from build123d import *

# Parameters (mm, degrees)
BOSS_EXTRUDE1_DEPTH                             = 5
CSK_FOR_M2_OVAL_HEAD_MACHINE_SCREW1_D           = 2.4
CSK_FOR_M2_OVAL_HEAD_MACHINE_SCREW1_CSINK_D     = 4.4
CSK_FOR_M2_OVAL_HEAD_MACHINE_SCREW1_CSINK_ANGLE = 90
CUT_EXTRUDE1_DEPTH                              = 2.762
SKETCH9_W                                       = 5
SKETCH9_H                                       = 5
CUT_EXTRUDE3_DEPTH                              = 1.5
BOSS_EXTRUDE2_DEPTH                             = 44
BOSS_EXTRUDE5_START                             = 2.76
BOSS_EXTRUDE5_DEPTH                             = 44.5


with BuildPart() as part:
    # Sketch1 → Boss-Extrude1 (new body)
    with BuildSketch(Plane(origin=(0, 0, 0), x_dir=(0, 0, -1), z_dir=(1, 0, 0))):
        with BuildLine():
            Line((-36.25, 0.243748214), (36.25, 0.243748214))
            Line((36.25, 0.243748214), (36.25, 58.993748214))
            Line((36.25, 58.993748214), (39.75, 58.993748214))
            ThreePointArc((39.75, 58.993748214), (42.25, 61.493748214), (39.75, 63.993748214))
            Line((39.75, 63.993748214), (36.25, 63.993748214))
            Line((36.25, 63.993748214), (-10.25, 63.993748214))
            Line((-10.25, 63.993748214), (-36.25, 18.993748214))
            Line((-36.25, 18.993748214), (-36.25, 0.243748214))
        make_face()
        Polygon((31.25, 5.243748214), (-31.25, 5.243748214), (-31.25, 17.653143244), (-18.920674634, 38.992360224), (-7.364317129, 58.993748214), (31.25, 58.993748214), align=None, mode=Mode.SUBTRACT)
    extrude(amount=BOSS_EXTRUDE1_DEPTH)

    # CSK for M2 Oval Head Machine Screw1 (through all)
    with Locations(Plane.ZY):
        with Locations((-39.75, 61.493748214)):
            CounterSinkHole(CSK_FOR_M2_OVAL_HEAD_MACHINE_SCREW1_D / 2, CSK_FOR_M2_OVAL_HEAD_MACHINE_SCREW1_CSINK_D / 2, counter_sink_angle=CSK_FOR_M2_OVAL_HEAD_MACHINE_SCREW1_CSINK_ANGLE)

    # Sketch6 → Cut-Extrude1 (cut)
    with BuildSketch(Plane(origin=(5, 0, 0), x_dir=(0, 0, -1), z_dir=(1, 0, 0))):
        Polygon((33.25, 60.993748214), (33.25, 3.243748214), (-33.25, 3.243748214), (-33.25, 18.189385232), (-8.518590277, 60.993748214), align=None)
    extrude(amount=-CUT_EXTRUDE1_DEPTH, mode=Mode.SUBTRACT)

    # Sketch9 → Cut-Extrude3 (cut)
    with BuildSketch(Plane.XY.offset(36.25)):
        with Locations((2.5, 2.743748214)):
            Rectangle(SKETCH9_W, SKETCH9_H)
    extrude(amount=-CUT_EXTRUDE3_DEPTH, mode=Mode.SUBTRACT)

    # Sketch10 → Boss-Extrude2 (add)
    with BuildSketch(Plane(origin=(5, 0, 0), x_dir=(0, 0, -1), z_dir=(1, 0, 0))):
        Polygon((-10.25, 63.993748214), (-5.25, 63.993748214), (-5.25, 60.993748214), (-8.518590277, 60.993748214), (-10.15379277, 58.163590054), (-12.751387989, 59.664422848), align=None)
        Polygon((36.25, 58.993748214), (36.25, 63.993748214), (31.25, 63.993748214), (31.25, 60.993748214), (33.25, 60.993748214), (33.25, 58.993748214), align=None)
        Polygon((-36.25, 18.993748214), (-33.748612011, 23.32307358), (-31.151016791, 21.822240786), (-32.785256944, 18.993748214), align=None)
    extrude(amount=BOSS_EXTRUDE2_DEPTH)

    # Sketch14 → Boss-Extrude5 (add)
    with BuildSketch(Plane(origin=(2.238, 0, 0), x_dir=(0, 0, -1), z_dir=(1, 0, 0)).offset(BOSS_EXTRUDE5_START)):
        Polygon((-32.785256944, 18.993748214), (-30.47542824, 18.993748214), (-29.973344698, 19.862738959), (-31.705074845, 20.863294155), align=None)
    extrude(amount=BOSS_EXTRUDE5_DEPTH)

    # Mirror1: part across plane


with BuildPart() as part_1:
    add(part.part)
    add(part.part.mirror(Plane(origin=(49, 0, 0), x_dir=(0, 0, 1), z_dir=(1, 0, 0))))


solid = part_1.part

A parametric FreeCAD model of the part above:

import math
import FreeCAD as App
import Part
import Sketcher

V = App.Vector
Q = App.Units.Quantity

doc = App.newDocument("Part")
params = doc.addObject("Spreadsheet::Sheet", "Params")
for row, (alias, value) in enumerate([
    ("sketch1_radius", "2.5 mm"),
    ("sketch1_height", "50 mm"),
    ("sketch1_height2", "72.5 mm"),
    ("sketch1_height3", "3.5 mm"),
    ("sketch1_height4", "62.5 mm"),
    ("pad1_length", "5 mm"),
    ("sketch2_diameter", "2.4 mm"),
    ("hole_diameter", "2.4 mm"),
    ("hole_csink_diameter", "4.4 mm"),
    ("sketch3_height", "66.5 mm"),
    ("sketch3_width", "57.75 mm"),
    ("pocket1_length", "2.762 mm"),
    ("sketch4_width", "5 mm"),
    ("pocket2_length", "1.5 mm"),
    ("sketch5_width", "3 mm"),
    ("sketch5_width2", "5 mm"),
    ("sketch5_length", "5 mm"),
    ("sketch5_length2", "3 mm"),
    ("pad2_length", "44 mm"),
    ("sketch6_length", "2 mm"),
    ("pad3_length", "44.5 mm"),
], start=1):
    params.set(f"A{row}", alias)
    params.set(f"B{row}", "=" + value)
    params.setAlias(f"B{row}", alias)

body = doc.addObject("PartDesign::Body", "Body")

sketch1 = body.newObject("Sketcher::SketchObject", "Sketch")
sketch1.AttachmentSupport = (doc.getObject("YZ_Plane"), [""])
sketch1.MapMode = "FlatFace"
sketch1.addGeometry(Part.LineSegment(V(0.2, 36.2, 0), V(0.2, -36.2, 0)), False)
sketch1.addGeometry(Part.LineSegment(V(0.2, -36.2, 0), V(59, -36.2, 0)), False)
sketch1.addGeometry(Part.LineSegment(V(59, -36.2, 0), V(59, -39.8, 0)), False)
sketch1.addGeometry(Part.ArcOfCircle(Part.Circle(V(61.5, -39.8, 0), V(0, 0, 1), 2.5), math.radians(180), math.radians(360)), False)
sketch1.addGeometry(Part.LineSegment(V(64, -39.8, 0), V(64, 10.2, 0)), False)
sketch1.addGeometry(Part.LineSegment(V(64, 10.2, 0), V(19, 36.2, 0)), False)
sketch1.addGeometry(Part.LineSegment(V(19, 36.2, 0), V(0.2, 36.2, 0)), False)
sketch1.addGeometry(Part.LineSegment(V(59, -31.2, 0), V(5.2, -31.2, 0)), False)
sketch1.addGeometry(Part.LineSegment(V(5.2, -31.2, 0), V(5.2, 31.2, 0)), False)
sketch1.addGeometry(Part.LineSegment(V(5.2, 31.2, 0), V(17.7, 31.2, 0)), False)
sketch1.addGeometry(Part.LineSegment(V(17.7, 31.2, 0), V(39, 18.9, 0)), False)
sketch1.addGeometry(Part.LineSegment(V(39, 18.9, 0), V(59, 7.4, 0)), False)
sketch1.addGeometry(Part.LineSegment(V(59, 7.4, 0), V(59, -31.2, 0)), False)
sketch1.addConstraint(Sketcher.Constraint("Coincident", 0, 2, 1, 1))
sketch1.addConstraint(Sketcher.Constraint("Coincident", 1, 2, 2, 1))
sketch1.addConstraint(Sketcher.Constraint("Tangent", 2, 2, 3, 1))
sketch1.addConstraint(Sketcher.Constraint("Tangent", 3, 2, 4, 1))
sketch1.addConstraint(Sketcher.Constraint("Coincident", 4, 2, 5, 1))
sketch1.addConstraint(Sketcher.Constraint("Coincident", 5, 2, 6, 1))
sketch1.addConstraint(Sketcher.Constraint("Coincident", 6, 2, 0, 1))
sketch1.addConstraint(Sketcher.Constraint("Coincident", 7, 2, 8, 1))
sketch1.addConstraint(Sketcher.Constraint("Coincident", 8, 2, 9, 1))
sketch1.addConstraint(Sketcher.Constraint("Coincident", 9, 2, 10, 1))
sketch1.addConstraint(Sketcher.Constraint("Coincident", 10, 2, 11, 1))
sketch1.addConstraint(Sketcher.Constraint("Coincident", 11, 2, 12, 1))
sketch1.addConstraint(Sketcher.Constraint("Coincident", 12, 2, 7, 1))
sketch1.addConstraint(Sketcher.Constraint("Vertical", 0))
sketch1.addConstraint(Sketcher.Constraint("Horizontal", 1))
sketch1.addConstraint(Sketcher.Constraint("Vertical", 2))
sketch1.addConstraint(Sketcher.Constraint("Vertical", 4))
sketch1.addConstraint(Sketcher.Constraint("Horizontal", 6))
sketch1.addConstraint(Sketcher.Constraint("Horizontal", 7))
sketch1.addConstraint(Sketcher.Constraint("Vertical", 8))
sketch1.addConstraint(Sketcher.Constraint("Horizontal", 9))
sketch1.addConstraint(Sketcher.Constraint("Vertical", 12))
sketch1.addConstraint(Sketcher.Constraint("Parallel", 5, 10))
sketch1.addConstraint(Sketcher.Constraint("Parallel", 10, 11))
sketch1.addConstraint(Sketcher.Constraint("Vertical", 2, 2, 11, 2))
sketch1.addConstraint(Sketcher.Constraint("Radius", 3, Q("2.5 mm")))
sketch1.addConstraint(Sketcher.Constraint("DistanceY", 4, 1, 4, 2, Q("50 mm")))
sketch1.addConstraint(Sketcher.Constraint("DistanceY", 0, 2, 0, 1, Q("72.5 mm")))
sketch1.addConstraint(Sketcher.Constraint("DistanceY", 2, 2, 2, 1, Q("3.5 mm")))
sketch1.addConstraint(Sketcher.Constraint("DistanceY", 8, 1, 8, 2, Q("62.5 mm")))
sketch1.addConstraint(Sketcher.Constraint("DistanceX", 5, 2, 4, 2, Q("45 mm")))
sketch1.addConstraint(Sketcher.Constraint("DistanceX", 0, 2, 7, 2, Q("5 mm")))
sketch1.addConstraint(Sketcher.Constraint("DistanceY", 0, 2, 7, 2, Q("5 mm")))
sketch1.addConstraint(Sketcher.Constraint("DistanceX", 1, 1, 1, 2, Q("58.75 mm")))
sketch1.addConstraint(Sketcher.Constraint("DistanceY", 3, 3, -1, 1, Q("39.75 mm")))
sketch1.addConstraint(Sketcher.Constraint("Distance", 11, Q("23.09989 mm")))
sketch1.addConstraint(Sketcher.Constraint("DistanceX", 9, 1, 9, 2, Q("12.409395 mm")))
sketch1.addConstraint(Sketcher.Constraint("DistanceX", -1, 1, 3, 3, Q("61.493748 mm")))
sketch1.setExpression("Constraints[25]", "Params.sketch1_radius")
sketch1.setExpression("Constraints[26]", "Params.sketch1_height")
sketch1.setExpression("Constraints[27]", "Params.sketch1_height2")
sketch1.setExpression("Constraints[28]", "Params.sketch1_height3")
sketch1.setExpression("Constraints[29]", "Params.sketch1_height4")
pad1 = body.newObject("PartDesign::Pad", "Pad")
pad1.Profile = sketch1
pad1.setExpression("Length", "Params.pad1_length")

sketch2 = body.newObject("Sketcher::SketchObject", "Sketch001")
sketch2.AttachmentSupport = (doc.getObject("YZ_Plane"), [""])
sketch2.MapMode = "FlatFace"
sketch2.addGeometry(Part.Circle(V(61.5, -39.8, 0), V(0, 0, 1), 1.2), False)
sketch2.addConstraint(Sketcher.Constraint("Diameter", 0, Q("2.4 mm")))
sketch2.addConstraint(Sketcher.Constraint("DistanceY", 0, 3, -1, 1, Q("39.75 mm")))
sketch2.addConstraint(Sketcher.Constraint("DistanceX", -1, 1, 0, 3, Q("61.493748 mm")))
sketch2.setExpression("Constraints[0]", "Params.sketch2_diameter")
doc.recompute()
hole = body.newObject("PartDesign::Hole", "Hole")
hole.Profile = sketch2
hole.ThreadType = "None"
hole.setExpression("Diameter", "Params.hole_diameter")
hole.DepthType = "ThroughAll"
hole.HoleCutType = "Countersink"
hole.setExpression("HoleCutDiameter", "Params.hole_csink_diameter")
hole.HoleCutCountersinkAngle = 90
hole.Reversed = True

sketch3 = body.newObject("Sketcher::SketchObject", "Sketch002")
sketch3.AttachmentSupport = (doc.getObject("YZ_Plane"), [""])
sketch3.MapMode = "FlatFace"
sketch3.AttachmentOffset = App.Placement(V(0, 0, 5), App.Rotation())
sketch3.addGeometry(Part.LineSegment(V(3, -33, 0), V(61, -33, 0)), False)
sketch3.addGeometry(Part.LineSegment(V(61, -33, 0), V(61, 9, 0)), False)
sketch3.addGeometry(Part.LineSegment(V(61, 9, 0), V(18, 33, 0)), False)
sketch3.addGeometry(Part.LineSegment(V(18, 33, 0), V(3, 33, 0)), False)
sketch3.addGeometry(Part.LineSegment(V(3, 33, 0), V(3, -33, 0)), False)
sketch3.addConstraint(Sketcher.Constraint("Coincident", 0, 2, 1, 1))
sketch3.addConstraint(Sketcher.Constraint("Coincident", 1, 2, 2, 1))
sketch3.addConstraint(Sketcher.Constraint("Coincident", 2, 2, 3, 1))
sketch3.addConstraint(Sketcher.Constraint("Coincident", 3, 2, 4, 1))
sketch3.addConstraint(Sketcher.Constraint("Coincident", 4, 2, 0, 1))
sketch3.addConstraint(Sketcher.Constraint("Horizontal", 0))
sketch3.addConstraint(Sketcher.Constraint("Vertical", 1))
sketch3.addConstraint(Sketcher.Constraint("Horizontal", 3))
sketch3.addConstraint(Sketcher.Constraint("Vertical", 4))
sketch3.addConstraint(Sketcher.Constraint("DistanceY", 4, 2, 4, 1, Q("66.5 mm")))
sketch3.addConstraint(Sketcher.Constraint("DistanceX", 0, 1, 0, 2, Q("57.75 mm")))
sketch3.addConstraint(Sketcher.Constraint("DistanceY", 0, 2, -1, 1, Q("33.25 mm")))
sketch3.addConstraint(Sketcher.Constraint("DistanceY", 1, 1, 1, 2, Q("41.76859 mm")))
sketch3.addConstraint(Sketcher.Constraint("DistanceX", 3, 2, 3, 1, Q("14.945637 mm")))
sketch3.addConstraint(Sketcher.Constraint("DistanceX", -1, 1, 0, 2, Q("60.993748 mm")))
sketch3.setExpression("Constraints[9]", "Params.sketch3_height")
sketch3.setExpression("Constraints[10]", "Params.sketch3_width")
pocket1 = body.newObject("PartDesign::Pocket", "Pocket")
pocket1.Profile = sketch3
pocket1.setExpression("Length", "Params.pocket1_length")

sketch4 = body.newObject("Sketcher::SketchObject", "Sketch003")
sketch4.AttachmentSupport = (doc.getObject("XY_Plane"), [""])
sketch4.MapMode = "FlatFace"
sketch4.AttachmentOffset = App.Placement(V(0, 0, 36.25), App.Rotation())
sketch4.addGeometry(Part.LineSegment(V(0, 5, 0), V(0, 0, 0)), False)
sketch4.addGeometry(Part.LineSegment(V(0, 0, 0), V(5, 0, 0)), False)
sketch4.addGeometry(Part.LineSegment(V(5, 0, 0), V(5, 5, 0)), False)
sketch4.addGeometry(Part.LineSegment(V(5, 5, 0), V(0, 5, 0)), False)
sketch4.addConstraint(Sketcher.Constraint("Coincident", 0, 2, 1, 1))
sketch4.addConstraint(Sketcher.Constraint("Coincident", 1, 2, 2, 1))
sketch4.addConstraint(Sketcher.Constraint("Coincident", 2, 2, 3, 1))
sketch4.addConstraint(Sketcher.Constraint("Coincident", 3, 2, 0, 1))
sketch4.addConstraint(Sketcher.Constraint("Vertical", 0))
sketch4.addConstraint(Sketcher.Constraint("Horizontal", 1))
sketch4.addConstraint(Sketcher.Constraint("Vertical", 2))
sketch4.addConstraint(Sketcher.Constraint("Horizontal", 3))
sketch4.addConstraint(Sketcher.Constraint("PointOnObject", 0, 2, -2))
sketch4.addConstraint(Sketcher.Constraint("Equal", 3, 0))
sketch4.addConstraint(Sketcher.Constraint("DistanceX", 1, 1, 1, 2, Q("5 mm")))
sketch4.addConstraint(Sketcher.Constraint("DistanceY", -1, 1, 0, 2, Q("0.243748 mm")))
sketch4.setExpression("Constraints[10]", "Params.sketch4_width")
pocket2 = body.newObject("PartDesign::Pocket", "Pocket001")
pocket2.Profile = sketch4
pocket2.setExpression("Length", "Params.pocket2_length")

sketch5 = body.newObject("Sketcher::SketchObject", "Sketch004")
sketch5.AttachmentSupport = (doc.getObject("YZ_Plane"), [""])
sketch5.MapMode = "FlatFace"
sketch5.AttachmentOffset = App.Placement(V(0, 0, 5), App.Rotation())
sketch5.addGeometry(Part.LineSegment(V(64, 5.2, 0), V(64, 10.2, 0)), False)
sketch5.addGeometry(Part.LineSegment(V(64, 10.2, 0), V(59.7, 12.8, 0)), False)
sketch5.addGeometry(Part.LineSegment(V(59.7, 12.8, 0), V(58.2, 10.2, 0)), False)
sketch5.addGeometry(Part.LineSegment(V(58.2, 10.2, 0), V(61, 8.5, 0)), False)
sketch5.addGeometry(Part.LineSegment(V(61, 8.5, 0), V(61, 5.2, 0)), False)
sketch5.addGeometry(Part.LineSegment(V(61, 5.2, 0), V(64, 5.2, 0)), False)
sketch5.addGeometry(Part.LineSegment(V(59, -36.2, 0), V(64, -36.2, 0)), False)
sketch5.addGeometry(Part.LineSegment(V(64, -36.2, 0), V(64, -31.2, 0)), False)
sketch5.addGeometry(Part.LineSegment(V(64, -31.2, 0), V(61, -31.2, 0)), False)
sketch5.addGeometry(Part.LineSegment(V(61, -31.2, 0), V(61, -33.2, 0)), False)
sketch5.addGeometry(Part.LineSegment(V(61, -33.2, 0), V(59, -33.2, 0)), False)
sketch5.addGeometry(Part.LineSegment(V(59, -33.2, 0), V(59, -36.2, 0)), False)
sketch5.addGeometry(Part.LineSegment(V(23.3, 33.7, 0), V(19, 36.2, 0)), False)
sketch5.addGeometry(Part.LineSegment(V(19, 36.2, 0), V(19, 32.8, 0)), False)
sketch5.addGeometry(Part.LineSegment(V(19, 32.8, 0), V(21.8, 31.2, 0)), False)
sketch5.addGeometry(Part.LineSegment(V(21.8, 31.2, 0), V(23.3, 33.7, 0)), False)
sketch5.addConstraint(Sketcher.Constraint("Coincident", 0, 2, 1, 1))
sketch5.addConstraint(Sketcher.Constraint("Coincident", 1, 2, 2, 1))
sketch5.addConstraint(Sketcher.Constraint("Coincident", 2, 2, 3, 1))
sketch5.addConstraint(Sketcher.Constraint("Coincident", 3, 2, 4, 1))
sketch5.addConstraint(Sketcher.Constraint("Coincident", 4, 2, 5, 1))
sketch5.addConstraint(Sketcher.Constraint("Coincident", 5, 2, 0, 1))
sketch5.addConstraint(Sketcher.Constraint("Coincident", 6, 2, 7, 1))
sketch5.addConstraint(Sketcher.Constraint("Coincident", 7, 2, 8, 1))
sketch5.addConstraint(Sketcher.Constraint("Coincident", 8, 2, 9, 1))
sketch5.addConstraint(Sketcher.Constraint("Coincident", 9, 2, 10, 1))
sketch5.addConstraint(Sketcher.Constraint("Coincident", 10, 2, 11, 1))
sketch5.addConstraint(Sketcher.Constraint("Coincident", 11, 2, 6, 1))
sketch5.addConstraint(Sketcher.Constraint("Coincident", 12, 2, 13, 1))
sketch5.addConstraint(Sketcher.Constraint("Coincident", 13, 2, 14, 1))
sketch5.addConstraint(Sketcher.Constraint("Coincident", 14, 2, 15, 1))
sketch5.addConstraint(Sketcher.Constraint("Coincident", 15, 2, 12, 1))
sketch5.addConstraint(Sketcher.Constraint("Vertical", 0))
sketch5.addConstraint(Sketcher.Constraint("Vertical", 4))
sketch5.addConstraint(Sketcher.Constraint("Horizontal", 5))
sketch5.addConstraint(Sketcher.Constraint("Horizontal", 6))
sketch5.addConstraint(Sketcher.Constraint("Vertical", 7))
sketch5.addConstraint(Sketcher.Constraint("Horizontal", 8))
sketch5.addConstraint(Sketcher.Constraint("Vertical", 9))
sketch5.addConstraint(Sketcher.Constraint("Horizontal", 10))
sketch5.addConstraint(Sketcher.Constraint("Vertical", 11))
sketch5.addConstraint(Sketcher.Constraint("Vertical", 13))
sketch5.addConstraint(Sketcher.Constraint("Perpendicular", 1, 2))
sketch5.addConstraint(Sketcher.Constraint("Perpendicular", 2, 3))
sketch5.addConstraint(Sketcher.Constraint("Parallel", 3, 12))
sketch5.addConstraint(Sketcher.Constraint("Parallel", 12, 14))
sketch5.addConstraint(Sketcher.Constraint("Perpendicular", 14, 15))
sketch5.addConstraint(Sketcher.Constraint("Vertical", 5, 2, 6, 2))
sketch5.addConstraint(Sketcher.Constraint("Vertical", 4, 2, 8, 2))
sketch5.addConstraint(Sketcher.Constraint("Equal", 6, 0))
sketch5.addConstraint(Sketcher.Constraint("Equal", 0, 7))
sketch5.addConstraint(Sketcher.Constraint("Equal", 10, 9))
sketch5.addConstraint(Sketcher.Constraint("Equal", 1, 12))
sketch5.addConstraint(Sketcher.Constraint("Equal", 2, 15))
sketch5.addConstraint(Sketcher.Constraint("DistanceX", 5, 1, 5, 2, Q("3 mm")))
sketch5.addConstraint(Sketcher.Constraint("DistanceX", 6, 1, 6, 2, Q("5 mm")))
sketch5.addConstraint(Sketcher.Constraint("Distance", 1, Q("5 mm")))
sketch5.addConstraint(Sketcher.Constraint("Distance", 2, Q("3 mm")))
sketch5.addConstraint(Sketcher.Constraint("DistanceX", 12, 2, 3, 2, Q("42 mm")))
sketch5.addConstraint(Sketcher.Constraint("DistanceY", 0, 2, 12, 2, Q("26 mm")))
sketch5.addConstraint(Sketcher.Constraint("DistanceY", 6, 2, 5, 2, Q("41.5 mm")))
sketch5.addConstraint(Sketcher.Constraint("DistanceY", -1, 1, 0, 2, Q("10.25 mm")))
sketch5.addConstraint(Sketcher.Constraint("DistanceY", 4, 2, 4, 1, Q("3.26859 mm")))
sketch5.addConstraint(Sketcher.Constraint("DistanceX", -1, 1, 0, 2, Q("63.993748 mm")))
sketch5.setExpression("Constraints[38]", "Params.sketch5_width")
sketch5.setExpression("Constraints[39]", "Params.sketch5_width2")
sketch5.setExpression("Constraints[40]", "Params.sketch5_length")
sketch5.setExpression("Constraints[41]", "Params.sketch5_length2")
pad2 = body.newObject("PartDesign::Pad", "Pad001")
pad2.Profile = sketch5
pad2.setExpression("Length", "Params.pad2_length")

sketch6 = body.newObject("Sketcher::SketchObject", "Sketch005")
sketch6.AttachmentSupport = (doc.getObject("YZ_Plane"), [""])
sketch6.MapMode = "FlatFace"
sketch6.AttachmentOffset = App.Placement(V(0, 0, 4.998), App.Rotation())
sketch6.addGeometry(Part.LineSegment(V(19, 32.8, 0), V(19, 30.5, 0)), False)
sketch6.addGeometry(Part.LineSegment(V(19, 30.5, 0), V(19.9, 30, 0)), False)
sketch6.addGeometry(Part.LineSegment(V(19.9, 30, 0), V(20.9, 31.7, 0)), False)
sketch6.addGeometry(Part.LineSegment(V(20.9, 31.7, 0), V(19, 32.8, 0)), False)
sketch6.addConstraint(Sketcher.Constraint("Coincident", 0, 2, 1, 1))
sketch6.addConstraint(Sketcher.Constraint("Coincident", 1, 2, 2, 1))
sketch6.addConstraint(Sketcher.Constraint("Coincident", 2, 2, 3, 1))
sketch6.addConstraint(Sketcher.Constraint("Coincident", 3, 2, 0, 1))
sketch6.addConstraint(Sketcher.Constraint("Vertical", 0))
sketch6.addConstraint(Sketcher.Constraint("Perpendicular", 1, 2))
sketch6.addConstraint(Sketcher.Constraint("Perpendicular", 2, 3))
sketch6.addConstraint(Sketcher.Constraint("Distance", 2, Q("2 mm")))
sketch6.addConstraint(Sketcher.Constraint("DistanceY", 0, 2, 0, 1, Q("2.309829 mm")))
sketch6.addConstraint(Sketcher.Constraint("Distance", 1, Q("1.00361 mm")))
sketch6.addConstraint(Sketcher.Constraint("DistanceX", -1, 1, 0, 2, Q("18.993748 mm")))
sketch6.addConstraint(Sketcher.Constraint("DistanceY", -1, 1, 0, 2, Q("30.475428 mm")))
sketch6.setExpression("Constraints[7]", "Params.sketch6_length")
pad3 = body.newObject("PartDesign::Pad", "Pad002")
pad3.Profile = sketch6
pad3.setExpression("Length", "Params.pad3_length")
body2 = doc.addObject("PartDesign::Body", "Body001")
doc.recompute()

body2.BaseFeature = body
doc.recompute()

mirroring = doc.addObject("Part::Mirroring", "Mirroring")
mirroring.Source = body
mirroring.Base = V(49, 0, 0)
mirroring.Normal = V(1, 0, 0)
body3 = doc.addObject("PartDesign::Body", "Body002")
body3.BaseFeature = mirroring
boolean = body2.newObject("PartDesign::Boolean", "Boolean")
boolean.Type = "Fuse"
boolean.addObjects([body3])
doc.recompute()
mirroring.Visibility = False

doc.recompute()
